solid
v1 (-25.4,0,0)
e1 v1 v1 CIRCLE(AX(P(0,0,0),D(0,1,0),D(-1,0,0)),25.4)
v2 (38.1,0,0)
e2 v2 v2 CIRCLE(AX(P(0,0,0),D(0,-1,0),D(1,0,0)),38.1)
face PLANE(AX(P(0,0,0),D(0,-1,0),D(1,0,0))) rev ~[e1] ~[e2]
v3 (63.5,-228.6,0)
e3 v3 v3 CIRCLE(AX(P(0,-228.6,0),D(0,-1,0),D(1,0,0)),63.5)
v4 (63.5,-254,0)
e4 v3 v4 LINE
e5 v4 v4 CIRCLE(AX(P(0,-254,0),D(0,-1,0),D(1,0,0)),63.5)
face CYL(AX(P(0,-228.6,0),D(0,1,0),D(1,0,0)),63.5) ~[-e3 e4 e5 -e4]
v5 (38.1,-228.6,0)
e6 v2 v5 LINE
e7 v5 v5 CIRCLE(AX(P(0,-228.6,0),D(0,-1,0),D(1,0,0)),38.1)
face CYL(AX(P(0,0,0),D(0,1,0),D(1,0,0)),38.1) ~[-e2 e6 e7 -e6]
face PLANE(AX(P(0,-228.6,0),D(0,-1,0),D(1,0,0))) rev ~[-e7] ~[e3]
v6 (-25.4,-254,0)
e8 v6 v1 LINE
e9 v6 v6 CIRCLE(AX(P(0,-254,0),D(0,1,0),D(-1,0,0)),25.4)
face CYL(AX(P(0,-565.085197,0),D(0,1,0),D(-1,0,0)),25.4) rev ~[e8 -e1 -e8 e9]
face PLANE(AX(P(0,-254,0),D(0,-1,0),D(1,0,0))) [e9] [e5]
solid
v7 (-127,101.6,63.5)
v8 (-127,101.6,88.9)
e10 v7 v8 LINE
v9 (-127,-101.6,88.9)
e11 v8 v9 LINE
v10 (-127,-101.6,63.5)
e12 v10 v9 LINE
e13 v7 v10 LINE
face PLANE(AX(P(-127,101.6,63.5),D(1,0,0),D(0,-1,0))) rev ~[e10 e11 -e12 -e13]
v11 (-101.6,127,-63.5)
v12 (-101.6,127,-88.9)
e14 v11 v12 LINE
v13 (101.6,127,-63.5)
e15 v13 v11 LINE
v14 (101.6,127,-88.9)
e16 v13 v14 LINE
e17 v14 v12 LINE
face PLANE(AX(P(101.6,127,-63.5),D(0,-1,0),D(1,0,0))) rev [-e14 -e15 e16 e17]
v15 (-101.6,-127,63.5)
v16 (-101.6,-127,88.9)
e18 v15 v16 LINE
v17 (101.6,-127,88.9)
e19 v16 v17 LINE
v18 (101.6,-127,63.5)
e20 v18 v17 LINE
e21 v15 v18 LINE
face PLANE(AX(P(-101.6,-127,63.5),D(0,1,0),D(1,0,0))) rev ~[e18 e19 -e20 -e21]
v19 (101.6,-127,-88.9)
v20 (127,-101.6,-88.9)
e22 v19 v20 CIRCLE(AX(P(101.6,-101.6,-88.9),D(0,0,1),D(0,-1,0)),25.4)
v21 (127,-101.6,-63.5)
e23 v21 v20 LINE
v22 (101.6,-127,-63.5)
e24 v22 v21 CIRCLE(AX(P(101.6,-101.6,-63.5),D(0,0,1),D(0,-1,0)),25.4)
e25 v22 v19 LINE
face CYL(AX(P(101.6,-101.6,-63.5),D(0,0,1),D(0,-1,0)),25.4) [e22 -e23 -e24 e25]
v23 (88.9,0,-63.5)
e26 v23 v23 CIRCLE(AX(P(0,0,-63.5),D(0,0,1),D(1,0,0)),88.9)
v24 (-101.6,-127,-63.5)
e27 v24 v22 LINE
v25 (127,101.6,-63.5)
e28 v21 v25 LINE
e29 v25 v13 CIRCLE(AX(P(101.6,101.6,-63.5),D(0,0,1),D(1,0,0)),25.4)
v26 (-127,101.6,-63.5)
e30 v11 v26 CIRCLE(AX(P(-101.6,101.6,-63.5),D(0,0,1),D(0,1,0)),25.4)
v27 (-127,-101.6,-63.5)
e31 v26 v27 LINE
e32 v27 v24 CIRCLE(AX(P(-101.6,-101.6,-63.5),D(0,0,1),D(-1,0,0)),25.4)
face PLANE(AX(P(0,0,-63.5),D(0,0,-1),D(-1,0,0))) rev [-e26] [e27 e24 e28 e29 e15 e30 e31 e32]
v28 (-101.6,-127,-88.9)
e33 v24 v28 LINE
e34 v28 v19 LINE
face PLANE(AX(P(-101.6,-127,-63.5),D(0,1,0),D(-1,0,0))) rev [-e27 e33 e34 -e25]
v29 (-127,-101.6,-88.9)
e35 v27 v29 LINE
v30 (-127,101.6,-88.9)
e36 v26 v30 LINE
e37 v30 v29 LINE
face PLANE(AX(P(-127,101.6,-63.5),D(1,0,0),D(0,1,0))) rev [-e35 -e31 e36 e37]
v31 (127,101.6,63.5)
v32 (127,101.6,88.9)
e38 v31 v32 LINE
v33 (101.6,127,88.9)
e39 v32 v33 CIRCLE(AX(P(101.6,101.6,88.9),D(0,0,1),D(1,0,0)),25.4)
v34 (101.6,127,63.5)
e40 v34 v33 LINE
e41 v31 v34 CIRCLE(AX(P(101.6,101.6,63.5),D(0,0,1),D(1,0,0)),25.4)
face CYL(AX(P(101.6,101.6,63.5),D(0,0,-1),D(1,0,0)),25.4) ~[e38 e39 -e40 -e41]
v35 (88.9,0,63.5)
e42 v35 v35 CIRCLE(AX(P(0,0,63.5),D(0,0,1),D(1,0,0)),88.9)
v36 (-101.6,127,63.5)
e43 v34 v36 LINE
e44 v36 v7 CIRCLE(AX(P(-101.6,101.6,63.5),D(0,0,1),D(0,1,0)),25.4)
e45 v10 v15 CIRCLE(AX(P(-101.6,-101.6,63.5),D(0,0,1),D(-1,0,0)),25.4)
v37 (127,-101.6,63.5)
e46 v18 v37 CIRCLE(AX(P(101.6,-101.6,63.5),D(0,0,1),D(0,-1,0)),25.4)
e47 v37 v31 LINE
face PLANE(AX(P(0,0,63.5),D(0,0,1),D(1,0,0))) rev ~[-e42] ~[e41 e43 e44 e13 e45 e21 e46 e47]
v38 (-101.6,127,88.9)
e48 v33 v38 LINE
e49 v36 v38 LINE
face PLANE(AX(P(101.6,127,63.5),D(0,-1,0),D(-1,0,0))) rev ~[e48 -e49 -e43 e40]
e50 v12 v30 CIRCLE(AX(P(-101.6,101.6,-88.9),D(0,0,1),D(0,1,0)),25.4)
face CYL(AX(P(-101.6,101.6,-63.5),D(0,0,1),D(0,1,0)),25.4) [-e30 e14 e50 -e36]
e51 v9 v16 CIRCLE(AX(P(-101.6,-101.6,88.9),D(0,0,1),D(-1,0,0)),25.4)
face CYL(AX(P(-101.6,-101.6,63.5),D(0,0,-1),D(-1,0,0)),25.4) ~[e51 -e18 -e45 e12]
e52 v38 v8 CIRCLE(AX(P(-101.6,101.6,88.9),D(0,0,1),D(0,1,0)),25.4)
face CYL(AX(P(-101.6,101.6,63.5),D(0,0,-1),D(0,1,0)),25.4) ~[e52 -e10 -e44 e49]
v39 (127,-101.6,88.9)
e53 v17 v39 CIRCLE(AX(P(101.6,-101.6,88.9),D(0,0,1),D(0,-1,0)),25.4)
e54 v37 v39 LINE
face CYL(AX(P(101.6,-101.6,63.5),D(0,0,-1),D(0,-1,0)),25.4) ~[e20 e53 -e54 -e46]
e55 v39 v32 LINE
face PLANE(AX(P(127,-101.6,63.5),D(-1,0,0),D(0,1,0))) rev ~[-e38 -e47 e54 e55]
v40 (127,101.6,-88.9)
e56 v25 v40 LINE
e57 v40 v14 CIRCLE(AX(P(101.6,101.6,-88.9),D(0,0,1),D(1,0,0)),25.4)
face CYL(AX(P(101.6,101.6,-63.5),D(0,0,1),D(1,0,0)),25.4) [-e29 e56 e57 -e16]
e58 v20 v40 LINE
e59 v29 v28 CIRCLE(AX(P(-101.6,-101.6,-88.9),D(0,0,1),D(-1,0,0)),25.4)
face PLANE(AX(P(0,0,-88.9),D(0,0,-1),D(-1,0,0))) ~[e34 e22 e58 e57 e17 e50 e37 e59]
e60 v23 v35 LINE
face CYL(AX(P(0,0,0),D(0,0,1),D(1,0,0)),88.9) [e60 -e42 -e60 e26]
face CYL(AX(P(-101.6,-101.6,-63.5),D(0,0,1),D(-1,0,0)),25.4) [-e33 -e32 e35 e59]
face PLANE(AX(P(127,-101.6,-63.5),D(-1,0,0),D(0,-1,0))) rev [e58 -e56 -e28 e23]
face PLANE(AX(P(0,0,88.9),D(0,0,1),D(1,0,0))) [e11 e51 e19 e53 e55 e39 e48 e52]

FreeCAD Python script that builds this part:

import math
import FreeCAD as App
import Part
import Sketcher
Q = App.Units.Quantity

doc = App.newDocument("Part")
body = doc.addObject("PartDesign::Body", "Body")

sketch1 = body.newObject("Sketcher::SketchObject", "Sketch")
sketch1.AttachmentSupport = (doc.getObject("XY_Plane"), [""])
sketch1.MapMode = "FlatFace"
sketch1.addGeometry(Part.Circle(App.Vector(0, 0, 0), App.Vector(0, 0, 1), 89), False)
sketch1.addConstraint(Sketcher.Constraint("Coincident", 0, 3, -1, 1))
sketch1.addConstraint(Sketcher.Constraint("Diameter", 0, Q("7 in")))
pad1 = body.newObject("PartDesign::Pad", "Pad")
pad1.Profile = sketch1
pad1.Length = Q("5 in")
pad1.Midplane = True

sketch2 = body.newObject("Sketcher::SketchObject", "Sketch001")
sketch2.AttachmentSupport = (doc.getObject("XY_Plane"), [""])
sketch2.MapMode = "FlatFace"
sketch2.AttachmentOffset = App.Placement(App.Vector(0, 0, 2.5 * 25.4), App.Rotation())
sketch2.addGeometry(Part.LineSegment(App.Vector(102, 127, 0), App.Vector(-102, 127, 0)), False)
sketch2.addGeometry(Part.ArcOfCircle(Part.Circle(App.Vector(-102, 102, 0), App.Vector(0, 0, 1), 25), math.radians(90), math.radians(180)), False)
sketch2.addGeometry(Part.LineSegment(App.Vector(-127, 102, 0), App.Vector(-127, -102, 0)), False)
sketch2.addGeometry(Part.ArcOfCircle(Part.Circle(App.Vector(-102, -102, 0), App.Vector(0, 0, 1), 25), math.radians(180), math.radians(270)), False)
sketch2.addGeometry(Part.LineSegment(App.Vector(-102, -127, 0), App.Vector(102, -127, 0)), False)
sketch2.addGeometry(Part.ArcOfCircle(Part.Circle(App.Vector(102, -102, 0), App.Vector(0, 0, 1), 25), math.radians(-90), math.radians(0)), False)
sketch2.addGeometry(Part.LineSegment(App.Vector(127, -102, 0), App.Vector(127, 102, 0)), False)
sketch2.addGeometry(Part.ArcOfCircle(Part.Circle(App.Vector(102, 102, 0), App.Vector(0, 0, 1), 25), math.radians(0), math.radians(90)), False)
sketch2.addConstraint(Sketcher.Constraint("Tangent", 0, 2, 1, 1))
sketch2.addConstraint(Sketcher.Constraint("Tangent", 1, 2, 2, 1))
sketch2.addConstraint(Sketcher.Constraint("Tangent", 2, 2, 3, 1))
sketch2.addConstraint(Sketcher.Constraint("Tangent", 3, 2, 4, 1))
sketch2.addConstraint(Sketcher.Constraint("Tangent", 4, 2, 5, 1))
sketch2.addConstraint(Sketcher.Constraint("Tangent", 5, 2, 6, 1))
sketch2.addConstraint(Sketcher.Constraint("Tangent", 6, 2, 7, 1))
sketch2.addConstraint(Sketcher.Constraint("Tangent", 7, 2, 0, 1))
sketch2.addConstraint(Sketcher.Constraint("Horizontal", 0))
sketch2.addConstraint(Sketcher.Constraint("Vertical", 2))
sketch2.addConstraint(Sketcher.Constraint("Horizontal", 4))
sketch2.addConstraint(Sketcher.Constraint("Vertical", 6))
sketch2.addConstraint(Sketcher.Constraint("Equal", 1, 3))
sketch2.addConstraint(Sketcher.Constraint("Equal", 3, 5))
sketch2.addConstraint(Sketcher.Constraint("Equal", 5, 7))
sketch2.addConstraint(Sketcher.Constraint("Symmetric", 1, 3, 5, 3, -1, 1))
sketch2.addConstraint(Sketcher.Constraint("Equal", 4, 2))
sketch2.addConstraint(Sketcher.Constraint("Radius", 1, Q("1 in")))
sketch2.addConstraint(Sketcher.Constraint("DistanceX", 0, 2, 0, 1, Q("8 in")))
pad2 = body.newObject("PartDesign::Pad", "Pad001")
pad2.Profile = sketch2
pad2.Length = Q("1 in")
body2 = doc.addObject("PartDesign::Body", "Body001")
doc.recompute()

body2.BaseFeature = body
doc.recompute()

mirroring = doc.addObject("Part::Mirroring", "Mirroring")
mirroring.Source = body
mirroring.Base = App.Vector(0, 0, 0)
mirroring.Normal = App.Vector(0, 0, 1)
body3 = doc.addObject("PartDesign::Body", "Body002")
body3.BaseFeature = mirroring
boolean = body2.newObject("PartDesign::Boolean", "Boolean")
boolean.Type = "Fuse"
boolean.addObjects([body3])
doc.recompute()
body4 = doc.addObject("PartDesign::Body", "Body003")

sketch3 = body4.newObject("Sketcher::SketchObject", "Sketch002")
sketch3.AttachmentSupport = (doc.getObject("XZ_Plane003"), [""])
sketch3.MapMode = "FlatFace"
sketch3.addGeometry(Part.Circle(App.Vector(0, 0, 0), App.Vector(0, 0, 1), 38), False)
sketch3.addConstraint(Sketcher.Constraint("Coincident", 0, 3, -1, 1))
sketch3.addConstraint(Sketcher.Constraint("Diameter", 0, Q("3 in")))
pad3 = body4.newObject("PartDesign::Pad", "Pad002")
pad3.Profile = sketch3
pad3.Length = Q("9 in")

sketch4 = body4.newObject("Sketcher::SketchObject", "Sketch003")
sketch4.AttachmentSupport = (doc.getObject("XZ_Plane003"), [""])
sketch4.MapMode = "FlatFace"
sketch4.AttachmentOffset = App.Placement(App.Vector(0, 0, 9 * 25.4), App.Rotation())
sketch4.addGeometry(Part.Circle(App.Vector(0, 0, 0), App.Vector(0, 0, 1), 64), False)
sketch4.addConstraint(Sketcher.Constraint("Coincident", 0, 3, -1, 1))
sketch4.addConstraint(Sketcher.Constraint("Diameter", 0, Q("5 in")))
pad4 = body4.newObject("PartDesign::Pad", "Pad003")
pad4.Profile = sketch4
pad4.Length = Q("1 in")

sketch5 = body4.newObject("Sketcher::SketchObject", "Sketch004")
sketch5.AttachmentSupport = (doc.getObject("XZ_Plane003"), [""])
sketch5.MapMode = "FlatFace"
sketch5.AttachmentOffset = App.Placement(App.Vector(0, 0, 10 * 25.4), App.Rotation())
sketch5.addGeometry(Part.Circle(App.Vector(0, 0, 0), App.Vector(0, 0, 1), 25), False)
sketch5.addConstraint(Sketcher.Constraint("Coincident", 0, 3, -1, 1))
sketch5.addConstraint(Sketcher.Constraint("Diameter", 0, Q("2 in")))
doc.recompute()
hole = body4.newObject("PartDesign::Hole", "Hole")
hole.Profile = sketch5
hole.ThreadType = "None"
hole.Diameter = Q("2 in")
hole.DepthType = "ThroughAll"
mirroring.Visibility = False

doc.recompute()
